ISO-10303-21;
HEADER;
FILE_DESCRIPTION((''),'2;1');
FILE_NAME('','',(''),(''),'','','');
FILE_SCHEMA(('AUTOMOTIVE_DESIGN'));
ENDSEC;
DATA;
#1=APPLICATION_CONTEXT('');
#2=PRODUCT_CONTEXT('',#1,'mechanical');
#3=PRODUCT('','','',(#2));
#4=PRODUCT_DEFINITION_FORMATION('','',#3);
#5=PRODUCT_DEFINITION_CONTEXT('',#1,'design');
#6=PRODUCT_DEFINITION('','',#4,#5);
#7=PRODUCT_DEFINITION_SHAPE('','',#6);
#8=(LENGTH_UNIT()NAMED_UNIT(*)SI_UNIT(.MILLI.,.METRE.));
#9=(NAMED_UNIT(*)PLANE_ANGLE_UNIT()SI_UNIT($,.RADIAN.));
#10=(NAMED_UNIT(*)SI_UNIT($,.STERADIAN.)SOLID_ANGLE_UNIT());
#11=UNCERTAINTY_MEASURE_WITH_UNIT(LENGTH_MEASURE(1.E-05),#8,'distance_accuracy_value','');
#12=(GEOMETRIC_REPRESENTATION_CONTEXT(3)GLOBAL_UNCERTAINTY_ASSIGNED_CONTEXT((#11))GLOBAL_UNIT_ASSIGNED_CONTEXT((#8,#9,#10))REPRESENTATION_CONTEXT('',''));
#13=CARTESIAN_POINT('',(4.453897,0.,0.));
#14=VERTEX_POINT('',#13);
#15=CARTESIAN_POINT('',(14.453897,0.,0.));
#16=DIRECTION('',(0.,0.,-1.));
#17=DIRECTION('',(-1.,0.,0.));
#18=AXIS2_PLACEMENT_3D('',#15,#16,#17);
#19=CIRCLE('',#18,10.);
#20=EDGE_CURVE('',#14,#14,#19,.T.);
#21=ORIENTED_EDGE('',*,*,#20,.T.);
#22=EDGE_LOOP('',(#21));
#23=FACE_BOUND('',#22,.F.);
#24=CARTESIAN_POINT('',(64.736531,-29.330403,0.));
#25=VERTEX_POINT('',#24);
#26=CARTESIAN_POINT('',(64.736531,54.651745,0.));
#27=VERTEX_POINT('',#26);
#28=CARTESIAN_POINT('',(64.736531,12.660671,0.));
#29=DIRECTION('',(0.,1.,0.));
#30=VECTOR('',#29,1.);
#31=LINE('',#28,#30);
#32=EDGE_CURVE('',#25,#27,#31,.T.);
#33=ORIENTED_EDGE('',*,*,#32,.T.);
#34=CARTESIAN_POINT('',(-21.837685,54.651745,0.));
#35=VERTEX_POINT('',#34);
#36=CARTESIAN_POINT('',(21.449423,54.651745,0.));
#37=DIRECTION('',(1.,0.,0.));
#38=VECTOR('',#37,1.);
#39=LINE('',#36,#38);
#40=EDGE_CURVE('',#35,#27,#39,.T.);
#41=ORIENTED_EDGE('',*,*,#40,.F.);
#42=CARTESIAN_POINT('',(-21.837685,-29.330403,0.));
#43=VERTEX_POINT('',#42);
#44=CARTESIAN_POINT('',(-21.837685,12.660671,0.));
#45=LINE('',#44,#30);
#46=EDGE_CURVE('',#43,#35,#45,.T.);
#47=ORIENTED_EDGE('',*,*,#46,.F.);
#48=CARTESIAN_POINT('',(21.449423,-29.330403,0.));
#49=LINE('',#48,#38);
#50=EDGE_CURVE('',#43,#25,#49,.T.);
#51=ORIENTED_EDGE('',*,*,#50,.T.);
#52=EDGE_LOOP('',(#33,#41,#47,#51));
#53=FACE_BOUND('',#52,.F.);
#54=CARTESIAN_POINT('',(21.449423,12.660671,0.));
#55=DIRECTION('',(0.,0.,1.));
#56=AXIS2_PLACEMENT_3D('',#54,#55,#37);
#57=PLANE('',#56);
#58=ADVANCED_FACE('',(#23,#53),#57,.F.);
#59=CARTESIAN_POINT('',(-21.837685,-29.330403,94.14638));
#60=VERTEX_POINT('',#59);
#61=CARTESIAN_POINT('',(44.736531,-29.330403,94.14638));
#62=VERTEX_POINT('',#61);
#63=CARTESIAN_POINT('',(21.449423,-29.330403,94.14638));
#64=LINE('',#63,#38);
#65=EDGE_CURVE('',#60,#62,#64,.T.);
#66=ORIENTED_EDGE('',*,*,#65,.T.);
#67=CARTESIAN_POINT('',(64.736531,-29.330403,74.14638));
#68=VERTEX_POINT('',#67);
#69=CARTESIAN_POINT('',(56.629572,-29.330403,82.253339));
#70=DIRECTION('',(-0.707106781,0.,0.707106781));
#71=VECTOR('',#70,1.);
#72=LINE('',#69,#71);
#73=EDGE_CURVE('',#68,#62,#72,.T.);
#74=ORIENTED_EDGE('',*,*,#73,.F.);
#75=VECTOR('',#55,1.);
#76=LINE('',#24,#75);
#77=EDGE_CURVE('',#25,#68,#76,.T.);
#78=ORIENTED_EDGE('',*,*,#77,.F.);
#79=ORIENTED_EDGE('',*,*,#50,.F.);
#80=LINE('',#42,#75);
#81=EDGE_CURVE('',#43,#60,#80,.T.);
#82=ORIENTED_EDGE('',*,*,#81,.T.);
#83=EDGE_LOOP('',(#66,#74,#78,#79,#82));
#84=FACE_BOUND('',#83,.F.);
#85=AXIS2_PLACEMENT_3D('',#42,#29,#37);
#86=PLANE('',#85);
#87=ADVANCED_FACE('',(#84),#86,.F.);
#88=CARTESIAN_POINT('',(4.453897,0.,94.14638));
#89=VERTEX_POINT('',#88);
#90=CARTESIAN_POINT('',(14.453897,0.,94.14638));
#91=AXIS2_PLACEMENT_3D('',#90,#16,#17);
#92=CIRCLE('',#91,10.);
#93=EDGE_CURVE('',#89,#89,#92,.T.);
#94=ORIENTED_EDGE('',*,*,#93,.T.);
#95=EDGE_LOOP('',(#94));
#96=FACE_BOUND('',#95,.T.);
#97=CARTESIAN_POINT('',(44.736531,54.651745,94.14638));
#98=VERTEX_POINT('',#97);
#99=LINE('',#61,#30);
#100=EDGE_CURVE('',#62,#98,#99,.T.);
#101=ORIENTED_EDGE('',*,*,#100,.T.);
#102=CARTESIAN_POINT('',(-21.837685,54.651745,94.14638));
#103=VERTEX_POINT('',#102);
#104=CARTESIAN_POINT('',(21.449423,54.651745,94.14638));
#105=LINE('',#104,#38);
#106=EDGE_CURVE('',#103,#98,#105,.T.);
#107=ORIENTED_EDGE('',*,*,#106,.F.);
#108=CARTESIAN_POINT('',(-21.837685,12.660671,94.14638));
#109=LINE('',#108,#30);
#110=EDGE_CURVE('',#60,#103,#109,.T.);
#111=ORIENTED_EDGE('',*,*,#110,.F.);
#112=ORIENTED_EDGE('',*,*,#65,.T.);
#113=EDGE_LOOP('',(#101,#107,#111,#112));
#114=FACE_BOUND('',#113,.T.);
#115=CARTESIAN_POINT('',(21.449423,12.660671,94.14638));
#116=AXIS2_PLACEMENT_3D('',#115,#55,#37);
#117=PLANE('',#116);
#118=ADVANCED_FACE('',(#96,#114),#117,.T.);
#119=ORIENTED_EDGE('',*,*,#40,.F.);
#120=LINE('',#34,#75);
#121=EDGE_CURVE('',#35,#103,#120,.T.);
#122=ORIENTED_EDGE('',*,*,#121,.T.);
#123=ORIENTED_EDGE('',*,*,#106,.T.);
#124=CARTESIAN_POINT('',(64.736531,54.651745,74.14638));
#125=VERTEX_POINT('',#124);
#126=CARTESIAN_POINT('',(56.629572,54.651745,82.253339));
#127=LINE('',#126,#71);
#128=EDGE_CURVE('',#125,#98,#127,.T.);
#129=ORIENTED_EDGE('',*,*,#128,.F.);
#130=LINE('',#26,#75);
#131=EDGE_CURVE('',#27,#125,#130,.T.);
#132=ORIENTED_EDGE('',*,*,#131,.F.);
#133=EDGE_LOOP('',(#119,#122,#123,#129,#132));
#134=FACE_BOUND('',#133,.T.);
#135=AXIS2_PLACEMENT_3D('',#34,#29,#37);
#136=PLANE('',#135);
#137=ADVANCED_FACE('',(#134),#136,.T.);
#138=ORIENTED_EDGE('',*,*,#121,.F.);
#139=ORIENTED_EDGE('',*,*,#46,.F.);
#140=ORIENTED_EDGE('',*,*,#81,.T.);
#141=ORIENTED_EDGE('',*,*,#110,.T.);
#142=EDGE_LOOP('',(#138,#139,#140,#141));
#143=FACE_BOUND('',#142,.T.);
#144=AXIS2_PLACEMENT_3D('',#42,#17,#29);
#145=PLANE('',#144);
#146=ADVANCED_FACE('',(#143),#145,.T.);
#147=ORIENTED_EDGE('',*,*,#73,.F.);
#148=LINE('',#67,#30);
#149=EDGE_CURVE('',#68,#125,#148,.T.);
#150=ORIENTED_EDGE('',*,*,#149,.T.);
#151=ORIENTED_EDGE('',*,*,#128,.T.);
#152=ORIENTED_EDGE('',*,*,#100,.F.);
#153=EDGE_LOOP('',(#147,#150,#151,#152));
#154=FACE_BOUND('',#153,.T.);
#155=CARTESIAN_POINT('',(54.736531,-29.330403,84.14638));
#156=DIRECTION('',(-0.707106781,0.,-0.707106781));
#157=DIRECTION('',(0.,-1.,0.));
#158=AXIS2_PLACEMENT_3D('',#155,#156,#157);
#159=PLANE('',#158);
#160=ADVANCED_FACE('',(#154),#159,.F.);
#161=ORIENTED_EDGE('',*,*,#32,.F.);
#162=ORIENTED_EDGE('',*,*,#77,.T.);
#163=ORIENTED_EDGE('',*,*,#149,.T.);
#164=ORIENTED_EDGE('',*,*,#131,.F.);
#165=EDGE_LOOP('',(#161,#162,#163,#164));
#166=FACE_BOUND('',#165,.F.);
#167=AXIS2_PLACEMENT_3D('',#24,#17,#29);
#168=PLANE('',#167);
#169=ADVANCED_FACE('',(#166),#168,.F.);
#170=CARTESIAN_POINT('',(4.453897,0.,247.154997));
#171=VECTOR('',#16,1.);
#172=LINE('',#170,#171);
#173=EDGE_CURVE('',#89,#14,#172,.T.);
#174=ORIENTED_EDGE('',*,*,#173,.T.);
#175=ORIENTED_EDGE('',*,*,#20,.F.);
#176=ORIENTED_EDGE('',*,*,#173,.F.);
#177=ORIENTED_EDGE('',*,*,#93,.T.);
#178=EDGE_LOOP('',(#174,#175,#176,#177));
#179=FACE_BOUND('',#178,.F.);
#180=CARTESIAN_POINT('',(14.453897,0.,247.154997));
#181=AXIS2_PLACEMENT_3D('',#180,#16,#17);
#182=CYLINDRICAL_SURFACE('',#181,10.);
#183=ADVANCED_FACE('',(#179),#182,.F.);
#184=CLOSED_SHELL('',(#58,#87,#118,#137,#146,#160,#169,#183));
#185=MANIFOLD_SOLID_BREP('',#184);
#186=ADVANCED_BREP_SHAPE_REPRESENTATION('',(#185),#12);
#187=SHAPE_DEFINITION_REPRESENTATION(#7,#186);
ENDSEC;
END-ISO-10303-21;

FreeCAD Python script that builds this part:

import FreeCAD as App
import Part
import Sketcher


def edges_at(feature, points):
    """Names of the edges that pass closest to the given points."""
    edges = feature.Shape.Edges
    near = lambda p: min(range(len(edges)), key=lambda i: edges[i].distToShape(Part.Vertex(*p))[0])
    return sorted({f"Edge{near(p) + 1}" for p in points})

doc = App.newDocument("Part")
body = doc.addObject("PartDesign::Body", "Body")

# Sketch on XY plane
sketch1 = doc.addObject("Sketcher::SketchObject", "Sketch")
body.addObject(sketch1)
sketch1.AttachmentSupport = (doc.XY_Plane, [""])
sketch1.MapMode = "FlatFace"
sketch1.addGeometry([
    Part.LineSegment(App.Vector(-22, 55, 0), App.Vector(-22, -29, 0)),
    Part.LineSegment(App.Vector(-22, -29, 0), App.Vector(65, -29, 0)),
    Part.LineSegment(App.Vector(65, -29, 0), App.Vector(65, 55, 0)),
    Part.LineSegment(App.Vector(65, 55, 0), App.Vector(-22, 55, 0)),
], False)
sketch1.addConstraint([
    Sketcher.Constraint("Coincident", 0, 2, 1, 1),
    Sketcher.Constraint("Coincident", 1, 2, 2, 1),
    Sketcher.Constraint("Coincident", 2, 2, 3, 1),
    Sketcher.Constraint("Coincident", 3, 2, 0, 1),
    Sketcher.Constraint("Vertical", 0),
    Sketcher.Constraint("Horizontal", 1),
    Sketcher.Constraint("Vertical", 2),
    Sketcher.Constraint("Horizontal", 3),
    Sketcher.Constraint("DistanceX", 1, 1, 1, 2, 86.574215),
    Sketcher.Constraint("DistanceY", 0, 2, 0, 1, 83.982148),
    Sketcher.Constraint("DistanceX", -1, 1, 1, 2, 64.736531),
    Sketcher.Constraint("DistanceY", 0, 2, -1, 1, 29.330403),
])
pad1 = doc.addObject("PartDesign::Pad", "Pad")
body.addObject(pad1)
pad1.Profile = sketch1
pad1.Length = 94.14638
doc.recompute()

chamfer = doc.addObject("PartDesign::Chamfer", "Chamfer")
body.addObject(chamfer)
chamfer.Base = (pad1, edges_at(pad1, [(64.737, 12.661, 94.146)]))
chamfer.Size = 20

# Sketch on XY plane
sketch2 = doc.addObject("Sketcher::SketchObject", "Sketch001")
body.addObject(sketch2)
sketch2.AttachmentSupport = (doc.XY_Plane, [""])
sketch2.MapMode = "FlatFace"
sketch2.AttachmentOffset = App.Placement(App.Vector(0, 0, 94.14638), App.Rotation())
sketch2.addGeometry(Part.Circle(App.Vector(14, 0, 0), App.Vector(0, 0, 1), 10), False)
sketch2.addConstraint([
    Sketcher.Constraint("PointOnObject", 0, 3, -1),
    Sketcher.Constraint("Diameter", 0, 20.0),
    Sketcher.Constraint("DistanceX", -1, 1, 0, 3, 14.453897),
])
doc.recompute()
hole = doc.addObject("PartDesign::Hole", "Hole")
body.addObject(hole)
hole.Profile = sketch2
hole.ThreadType = "None"
hole.Diameter = 20
hole.DepthType = "ThroughAll"

doc.recompute()
